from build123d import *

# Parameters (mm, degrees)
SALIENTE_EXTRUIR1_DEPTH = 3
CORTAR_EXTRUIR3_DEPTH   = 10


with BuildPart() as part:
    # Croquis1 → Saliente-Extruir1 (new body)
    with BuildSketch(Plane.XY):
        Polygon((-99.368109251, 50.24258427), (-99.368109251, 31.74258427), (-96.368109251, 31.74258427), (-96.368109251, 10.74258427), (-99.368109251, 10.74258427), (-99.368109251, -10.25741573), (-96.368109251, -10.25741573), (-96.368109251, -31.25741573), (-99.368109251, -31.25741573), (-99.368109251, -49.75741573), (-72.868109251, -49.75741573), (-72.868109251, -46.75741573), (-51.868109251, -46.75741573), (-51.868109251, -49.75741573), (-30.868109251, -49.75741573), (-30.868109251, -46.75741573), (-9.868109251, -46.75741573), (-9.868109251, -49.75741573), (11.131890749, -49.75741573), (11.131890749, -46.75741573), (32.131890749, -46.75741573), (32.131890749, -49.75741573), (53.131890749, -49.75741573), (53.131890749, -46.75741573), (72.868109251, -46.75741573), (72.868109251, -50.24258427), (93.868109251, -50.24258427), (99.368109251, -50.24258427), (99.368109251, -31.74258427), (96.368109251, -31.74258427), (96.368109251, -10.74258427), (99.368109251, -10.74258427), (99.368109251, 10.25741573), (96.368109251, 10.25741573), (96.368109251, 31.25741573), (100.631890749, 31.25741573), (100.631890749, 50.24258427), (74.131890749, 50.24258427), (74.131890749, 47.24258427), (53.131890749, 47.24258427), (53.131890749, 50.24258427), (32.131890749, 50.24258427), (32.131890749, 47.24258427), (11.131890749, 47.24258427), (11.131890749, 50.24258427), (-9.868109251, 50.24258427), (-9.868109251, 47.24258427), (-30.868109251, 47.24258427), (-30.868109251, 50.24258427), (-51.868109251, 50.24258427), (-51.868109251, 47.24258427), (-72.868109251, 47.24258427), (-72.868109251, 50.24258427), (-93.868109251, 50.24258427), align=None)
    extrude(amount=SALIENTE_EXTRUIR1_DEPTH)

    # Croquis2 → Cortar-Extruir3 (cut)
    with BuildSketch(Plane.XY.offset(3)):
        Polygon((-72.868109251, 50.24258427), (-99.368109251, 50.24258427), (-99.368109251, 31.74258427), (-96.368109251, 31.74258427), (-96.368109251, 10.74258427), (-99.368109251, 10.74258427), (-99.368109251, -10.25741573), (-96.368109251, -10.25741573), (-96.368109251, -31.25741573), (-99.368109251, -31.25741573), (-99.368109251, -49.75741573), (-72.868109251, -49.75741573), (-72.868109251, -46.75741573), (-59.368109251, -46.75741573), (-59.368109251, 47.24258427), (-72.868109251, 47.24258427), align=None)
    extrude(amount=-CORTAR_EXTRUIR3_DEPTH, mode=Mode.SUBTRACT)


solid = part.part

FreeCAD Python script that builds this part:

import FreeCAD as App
import Part
import Sketcher
Q = App.Units.Quantity

doc = App.newDocument("Part")
body = doc.addObject("PartDesign::Body", "Body")

# Sketch on XY plane
sketch1 = body.newObject("Sketcher::SketchObject", "Sketch")
sketch1.AttachmentSupport = (doc.getObject("XY_Plane"), [""])
sketch1.MapMode = "FlatFace"
sketch1.addGeometry(Part.LineSegment(App.Vector(-99.4, 50.2, 0), App.Vector(-99.4, 31.7, 0)), False)
sketch1.addGeometry(Part.LineSegment(App.Vector(-99.4, 31.7, 0), App.Vector(-96.4, 31.7, 0)), False)
sketch1.addGeometry(Part.LineSegment(App.Vector(-96.4, 31.7, 0), App.Vector(-96.4, 10.7, 0)), False)
sketch1.addGeometry(Part.LineSegment(App.Vector(-96.4, 10.7, 0), App.Vector(-99.4, 10.7, 0)), False)
sketch1.addGeometry(Part.LineSegment(App.Vector(-99.4, 10.7, 0), App.Vector(-99.4, -10.3, 0)), False)
sketch1.addGeometry(Part.LineSegment(App.Vector(-99.4, -10.3, 0), App.Vector(-96.4, -10.3, 0)), False)
sketch1.addGeometry(Part.LineSegment(App.Vector(-96.4, -10.3, 0), App.Vector(-96.4, -31.3, 0)), False)
sketch1.addGeometry(Part.LineSegment(App.Vector(-96.4, -31.3, 0), App.Vector(-99.4, -31.3, 0)), False)
sketch1.addGeometry(Part.LineSegment(App.Vector(-99.4, -31.3, 0), App.Vector(-99.4, -49.8, 0)), False)
sketch1.addGeometry(Part.LineSegment(App.Vector(-99.4, -49.8, 0), App.Vector(-72.9, -49.8, 0)), False)
sketch1.addGeometry(Part.LineSegment(App.Vector(-72.9, -49.8, 0), App.Vector(-72.9, -46.8, 0)), False)
sketch1.addGeometry(Part.LineSegment(App.Vector(-72.9, -46.8, 0), App.Vector(-51.9, -46.8, 0)), False)
sketch1.addGeometry(Part.LineSegment(App.Vector(-51.9, -46.8, 0), App.Vector(-51.9, -49.8, 0)), False)
sketch1.addGeometry(Part.LineSegment(App.Vector(-51.9, -49.8, 0), App.Vector(-30.9, -49.8, 0)), False)
sketch1.addGeometry(Part.LineSegment(App.Vector(-30.9, -49.8, 0), App.Vector(-30.9, -46.8, 0)), False)
sketch1.addGeometry(Part.LineSegment(App.Vector(-30.9, -46.8, 0), App.Vector(-9.9, -46.8, 0)), False)
sketch1.addGeometry(Part.LineSegment(App.Vector(-9.9, -46.8, 0), App.Vector(-9.9, -49.8, 0)), False)
sketch1.addGeometry(Part.LineSegment(App.Vector(-9.9, -49.8, 0), App.Vector(11.1, -49.8, 0)), False)
sketch1.addGeometry(Part.LineSegment(App.Vector(11.1, -49.8, 0), App.Vector(11.1, -46.8, 0)), False)
sketch1.addGeometry(Part.LineSegment(App.Vector(11.1, -46.8, 0), App.Vector(32.1, -46.8, 0)), False)
sketch1.addGeometry(Part.LineSegment(App.Vector(32.1, -46.8, 0), App.Vector(32.1, -49.8, 0)), False)
sketch1.addGeometry(Part.LineSegment(App.Vector(32.1, -49.8, 0), App.Vector(53.1, -49.8, 0)), False)
sketch1.addGeometry(Part.LineSegment(App.Vector(53.1, -49.8, 0), App.Vector(53.1, -46.8, 0)), False)
sketch1.addGeometry(Part.LineSegment(App.Vector(53.1, -46.8, 0), App.Vector(72.9, -46.8, 0)), False)
sketch1.addGeometry(Part.LineSegment(App.Vector(72.9, -46.8, 0), App.Vector(72.9, -50.2, 0)), False)
sketch1.addGeometry(Part.LineSegment(App.Vector(72.9, -50.2, 0), App.Vector(99.4, -50.2, 0)), False)
sketch1.addGeometry(Part.LineSegment(App.Vector(99.4, -50.2, 0), App.Vector(99.4, -31.7, 0)), False)
sketch1.addGeometry(Part.LineSegment(App.Vector(99.4, -31.7, 0), App.Vector(96.4, -31.7, 0)), False)
sketch1.addGeometry(Part.LineSegment(App.Vector(96.4, -31.7, 0), App.Vector(96.4, -10.7, 0)), False)
sketch1.addGeometry(Part.LineSegment(App.Vector(96.4, -10.7, 0), App.Vector(99.4, -10.7, 0)), False)
sketch1.addGeometry(Part.LineSegment(App.Vector(99.4, -10.7, 0), App.Vector(99.4, 10.3, 0)), False)
sketch1.addGeometry(Part.LineSegment(App.Vector(99.4, 10.3, 0), App.Vector(96.4, 10.3, 0)), False)
sketch1.addGeometry(Part.LineSegment(App.Vector(96.4, 10.3, 0), App.Vector(96.4, 31.3, 0)), False)
sketch1.addGeometry(Part.LineSegment(App.Vector(96.4, 31.3, 0), App.Vector(100.6, 31.3, 0)), False)
sketch1.addGeometry(Part.LineSegment(App.Vector(100.6, 31.3, 0), App.Vector(100.6, 50.2, 0)), False)
sketch1.addGeometry(Part.LineSegment(App.Vector(100.6, 50.2, 0), App.Vector(74.1, 50.2, 0)), False)
sketch1.addGeometry(Part.LineSegment(App.Vector(74.1, 50.2, 0), App.Vector(74.1, 47.2, 0)), False)
sketch1.addGeometry(Part.LineSegment(App.Vector(74.1, 47.2, 0), App.Vector(53.1, 47.2, 0)), False)
sketch1.addGeometry(Part.LineSegment(App.Vector(53.1, 47.2, 0), App.Vector(53.1, 50.2, 0)), False)
sketch1.addGeometry(Part.LineSegment(App.Vector(53.1, 50.2, 0), App.Vector(32.1, 50.2, 0)), False)
sketch1.addGeometry(Part.LineSegment(App.Vector(32.1, 50.2, 0), App.Vector(32.1, 47.2, 0)), False)
sketch1.addGeometry(Part.LineSegment(App.Vector(32.1, 47.2, 0), App.Vector(11.1, 47.2, 0)), False)
sketch1.addGeometry(Part.LineSegment(App.Vector(11.1, 47.2, 0), App.Vector(11.1, 50.2, 0)), False)
sketch1.addGeometry(Part.LineSegment(App.Vector(11.1, 50.2, 0), App.Vector(-9.9, 50.2, 0)), False)
sketch1.addGeometry(Part.LineSegment(App.Vector(-9.9, 50.2, 0), App.Vector(-9.9, 47.2, 0)), False)
sketch1.addGeometry(Part.LineSegment(App.Vector(-9.9, 47.2, 0), App.Vector(-30.9, 47.2, 0)), False)
sketch1.addGeometry(Part.LineSegment(App.Vector(-30.9, 47.2, 0), App.Vector(-30.9, 50.2, 0)), False)
sketch1.addGeometry(Part.LineSegment(App.Vector(-30.9, 50.2, 0), App.Vector(-51.9, 50.2, 0)), False)
sketch1.addGeometry(Part.LineSegment(App.Vector(-51.9, 50.2, 0), App.Vector(-51.9, 47.2, 0)), False)
sketch1.addGeometry(Part.LineSegment(App.Vector(-51.9, 47.2, 0), App.Vector(-72.9, 47.2, 0)), False)
sketch1.addGeometry(Part.LineSegment(App.Vector(-72.9, 47.2, 0), App.Vector(-72.9, 50.2, 0)), False)
sketch1.addGeometry(Part.LineSegment(App.Vector(-72.9, 50.2, 0), App.Vector(-99.4, 50.2, 0)), False)
sketch1.addConstraint(Sketcher.Constraint("Coincident", 0, 2, 1, 1))
sketch1.addConstraint(Sketcher.Constraint("Coincident", 1, 2, 2, 1))
sketch1.addConstraint(Sketcher.Constraint("Coincident", 2, 2, 3, 1))
sketch1.addConstraint(Sketcher.Constraint("Coincident", 3, 2, 4, 1))
sketch1.addConstraint(Sketcher.Constraint("Coincident", 4, 2, 5, 1))
sketch1.addConstraint(Sketcher.Constraint("Coincident", 5, 2, 6, 1))
sketch1.addConstraint(Sketcher.Constraint("Coincident", 6, 2, 7, 1))
sketch1.addConstraint(Sketcher.Constraint("Coincident", 7, 2, 8, 1))
sketch1.addConstraint(Sketcher.Constraint("Coincident", 8, 2, 9, 1))
sketch1.addConstraint(Sketcher.Constraint("Coincident", 9, 2, 10, 1))
sketch1.addConstraint(Sketcher.Constraint("Coincident", 10, 2, 11, 1))
sketch1.addConstraint(Sketcher.Constraint("Coincident", 11, 2, 12, 1))
sketch1.addConstraint(Sketcher.Constraint("Coincident", 12, 2, 13, 1))
sketch1.addConstraint(Sketcher.Constraint("Coincident", 13, 2, 14, 1))
sketch1.addConstraint(Sketcher.Constraint("Coincident", 14, 2, 15, 1))
sketch1.addConstraint(Sketcher.Constraint("Coincident", 15, 2, 16, 1))
sketch1.addConstraint(Sketcher.Constraint("Coincident", 16, 2, 17, 1))
sketch1.addConstraint(Sketcher.Constraint("Coincident", 17, 2, 18, 1))
sketch1.addConstraint(Sketcher.Constraint("Coincident", 18, 2, 19, 1))
sketch1.addConstraint(Sketcher.Constraint("Coincident", 19, 2, 20, 1))
sketch1.addConstraint(Sketcher.Constraint("Coincident", 20, 2, 21, 1))
sketch1.addConstraint(Sketcher.Constraint("Coincident", 21, 2, 22, 1))
sketch1.addConstraint(Sketcher.Constraint("Coincident", 22, 2, 23, 1))
sketch1.addConstraint(Sketcher.Constraint("Coincident", 23, 2, 24, 1))
sketch1.addConstraint(Sketcher.Constraint("Coincident", 24, 2, 25, 1))
sketch1.addConstraint(Sketcher.Constraint("Coincident", 25, 2, 26, 1))
sketch1.addConstraint(Sketcher.Constraint("Coincident", 26, 2, 27, 1))
sketch1.addConstraint(Sketcher.Constraint("Coincident", 27, 2, 28, 1))
sketch1.addConstraint(Sketcher.Constraint("Coincident", 28, 2, 29, 1))
sketch1.addConstraint(Sketcher.Constraint("Coincident", 29, 2, 30, 1))
sketch1.addConstraint(Sketcher.Constraint("Coincident", 30, 2, 31, 1))
sketch1.addConstraint(Sketcher.Constraint("Coincident", 31, 2, 32, 1))
sketch1.addConstraint(Sketcher.Constraint("Coincident", 32, 2, 33, 1))
sketch1.addConstraint(Sketcher.Constraint("Coincident", 33, 2, 34, 1))
sketch1.addConstraint(Sketcher.Constraint("Coincident", 34, 2, 35, 1))
sketch1.addConstraint(Sketcher.Constraint("Coincident", 35, 2, 36, 1))
sketch1.addConstraint(Sketcher.Constraint("Coincident", 36, 2, 37, 1))
sketch1.addConstraint(Sketcher.Constraint("Coincident", 37, 2, 38, 1))
sketch1.addConstraint(Sketcher.Constraint("Coincident", 38, 2, 39, 1))
sketch1.addConstraint(Sketcher.Constraint("Coincident", 39, 2, 40, 1))
sketch1.addConstraint(Sketcher.Constraint("Coincident", 40, 2, 41, 1))
sketch1.addConstraint(Sketcher.Constraint("Coincident", 41, 2, 42, 1))
sketch1.addConstraint(Sketcher.Constraint("Coincident", 42, 2, 43, 1))
sketch1.addConstraint(Sketcher.Constraint("Coincident", 43, 2, 44, 1))
sketch1.addConstraint(Sketcher.Constraint("Coincident", 44, 2, 45, 1))
sketch1.addConstraint(Sketcher.Constraint("Coincident", 45, 2, 46, 1))
sketch1.addConstraint(Sketcher.Constraint("Coincident", 46, 2, 47, 1))
sketch1.addConstraint(Sketcher.Constraint("Coincident", 47, 2, 48, 1))
sketch1.addConstraint(Sketcher.Constraint("Coincident", 48, 2, 49, 1))
sketch1.addConstraint(Sketcher.Constraint("Coincident", 49, 2, 50, 1))
sketch1.addConstraint(Sketcher.Constraint("Coincident", 50, 2, 51, 1))
sketch1.addConstraint(Sketcher.Constraint("Coincident", 51, 2, 0, 1))
sketch1.addConstraint(Sketcher.Constraint("Vertical", 0))
sketch1.addConstraint(Sketcher.Constraint("Horizontal", 1))
sketch1.addConstraint(Sketcher.Constraint("Vertical", 2))
sketch1.addConstraint(Sketcher.Constraint("Horizontal", 3))
sketch1.addConstraint(Sketcher.Constraint("Vertical", 4))
sketch1.addConstraint(Sketcher.Constraint("Horizontal", 5))
sketch1.addConstraint(Sketcher.Constraint("Vertical", 6))
sketch1.addConstraint(Sketcher.Constraint("Horizontal", 7))
sketch1.addConstraint(Sketcher.Constraint("Vertical", 8))
sketch1.addConstraint(Sketcher.Constraint("Horizontal", 9))
sketch1.addConstraint(Sketcher.Constraint("Vertical", 10))
sketch1.addConstraint(Sketcher.Constraint("Horizontal", 11))
sketch1.addConstraint(Sketcher.Constraint("Vertical", 12))
sketch1.addConstraint(Sketcher.Constraint("Horizontal", 13))
sketch1.addConstraint(Sketcher.Constraint("Vertical", 14))
sketch1.addConstraint(Sketcher.Constraint("Horizontal", 15))
sketch1.addConstraint(Sketcher.Constraint("Vertical", 16))
sketch1.addConstraint(Sketcher.Constraint("Horizontal", 17))
sketch1.addConstraint(Sketcher.Constraint("Vertical", 18))
sketch1.addConstraint(Sketcher.Constraint("Horizontal", 19))
sketch1.addConstraint(Sketcher.Constraint("Vertical", 20))
sketch1.addConstraint(Sketcher.Constraint("Horizontal", 21))
sketch1.addConstraint(Sketcher.Constraint("Vertical", 22))
sketch1.addConstraint(Sketcher.Constraint("Horizontal", 23))
sketch1.addConstraint(Sketcher.Constraint("Vertical", 24))
sketch1.addConstraint(Sketcher.Constraint("Horizontal", 25))
sketch1.addConstraint(Sketcher.Constraint("Vertical", 26))
sketch1.addConstraint(Sketcher.Constraint("Horizontal", 27))
sketch1.addConstraint(Sketcher.Constraint("Vertical", 28))
sketch1.addConstraint(Sketcher.Constraint("Horizontal", 29))
sketch1.addConstraint(Sketcher.Constraint("Vertical", 30))
sketch1.addConstraint(Sketcher.Constraint("Horizontal", 31))
sketch1.addConstraint(Sketcher.Constraint("Vertical", 32))
sketch1.addConstraint(Sketcher.Constraint("Horizontal", 33))
sketch1.addConstraint(Sketcher.Constraint("Vertical", 34))
sketch1.addConstraint(Sketcher.Constraint("Horizontal", 35))
sketch1.addConstraint(Sketcher.Constraint("Vertical", 36))
sketch1.addConstraint(Sketcher.Constraint("Horizontal", 37))
sketch1.addConstraint(Sketcher.Constraint("Vertical", 38))
sketch1.addConstraint(Sketcher.Constraint("Horizontal", 39))
sketch1.addConstraint(Sketcher.Constraint("Vertical", 40))
sketch1.addConstraint(Sketcher.Constraint("Horizontal", 41))
sketch1.addConstraint(Sketcher.Constraint("Vertical", 42))
sketch1.addConstraint(Sketcher.Constraint("Horizontal", 43))
sketch1.addConstraint(Sketcher.Constraint("Vertical", 44))
sketch1.addConstraint(Sketcher.Constraint("Horizontal", 45))
sketch1.addConstraint(Sketcher.Constraint("Vertical", 46))
sketch1.addConstraint(Sketcher.Constraint("Horizontal", 47))
sketch1.addConstraint(Sketcher.Constraint("Vertical", 48))
sketch1.addConstraint(Sketcher.Constraint("Horizontal", 49))
sketch1.addConstraint(Sketcher.Constraint("Vertical", 50))
sketch1.addConstraint(Sketcher.Constraint("Horizontal", 51))
sketch1.addConstraint(Sketcher.Constraint("Symmetric", 0, 2, 26, 2, -1, 1))
sketch1.addConstraint(Sketcher.Constraint("Symmetric", 2, 2, 28, 2, -1, 1))
sketch1.addConstraint(Sketcher.Constraint("Symmetric", 4, 2, 30, 2, -1, 1))
sketch1.addConstraint(Sketcher.Constraint("Symmetric", 6, 2, 32, 2, -1, 1))
sketch1.addConstraint(Sketcher.Constraint("Symmetric", 24, 2, 50, 2, -1, 1))
sketch1.addConstraint(Sketcher.Constraint("Symmetric", 10, 2, 23, 2, -2))
sketch1.addConstraint(Sketcher.Constraint("Horizontal", 9, 2, 12, 2))
sketch1.addConstraint(Sketcher.Constraint("Horizontal", 11, 2, 14, 2))
sketch1.addConstraint(Sketcher.Constraint("Horizontal", 13, 2, 16, 2))
sketch1.addConstraint(Sketcher.Constraint("Horizontal", 15, 2, 18, 2))
sketch1.addConstraint(Sketcher.Constraint("Horizontal", 17, 2, 20, 2))
sketch1.addConstraint(Sketcher.Constraint("Horizontal", 35, 2, 38, 2))
sketch1.addConstraint(Sketcher.Constraint("Horizontal", 37, 2, 40, 2))
sketch1.addConstraint(Sketcher.Constraint("Horizontal", 39, 2, 42, 2))
sketch1.addConstraint(Sketcher.Constraint("Horizontal", 41, 2, 44, 2))
sketch1.addConstraint(Sketcher.Constraint("Horizontal", 43, 2, 46, 2))
sketch1.addConstraint(Sketcher.Constraint("Horizontal", 45, 2, 48, 2))
sketch1.addConstraint(Sketcher.Constraint("Horizontal", 47, 2, 50, 2))
sketch1.addConstraint(Sketcher.Constraint("Vertical", 0, 2, 3, 2))
sketch1.addConstraint(Sketcher.Constraint("Vertical", 2, 2, 5, 2))
sketch1.addConstraint(Sketcher.Constraint("Vertical", 4, 2, 7, 2))
sketch1.addConstraint(Sketcher.Constraint("Vertical", 22, 2, 37, 2))
sketch1.addConstraint(Sketcher.Constraint("Vertical", 20, 2, 39, 2))
sketch1.addConstraint(Sketcher.Constraint("Vertical", 18, 2, 41, 2))
sketch1.addConstraint(Sketcher.Constraint("Vertical", 16, 2, 43, 2))
sketch1.addConstraint(Sketcher.Constraint("Vertical", 14, 2, 45, 2))
sketch1.addConstraint(Sketcher.Constraint("Vertical", 12, 2, 47, 2))
sketch1.addConstraint(Sketcher.Constraint("Equal", 11, 13))
sketch1.addConstraint(Sketcher.Constraint("Equal", 13, 15))
sketch1.addConstraint(Sketcher.Constraint("Equal", 15, 17))
sketch1.addConstraint(Sketcher.Constraint("Equal", 17, 19))
sketch1.addConstraint(Sketcher.Constraint("Equal", 19, 21))
sketch1.addConstraint(Sketcher.Constraint("Equal", 25, 35))
sketch1.addConstraint(Sketcher.Constraint("Equal", 21, 37))
sketch1.addConstraint(Sketcher.Constraint("Equal", 49, 2))
sketch1.addConstraint(Sketcher.Constraint("Equal", 2, 4))
sketch1.addConstraint(Sketcher.Constraint("Equal", 4, 6))
sketch1.addConstraint(Sketcher.Constraint("Equal", 0, 8))
sketch1.addConstraint(Sketcher.Constraint("Equal", 31, 10))
sketch1.addConstraint(Sketcher.Constraint("Equal", 22, 36))
sketch1.addConstraint(Sketcher.Constraint("DistanceX", 1, 1, 1, 2, Q("3 mm")))
sketch1.addConstraint(Sketcher.Constraint("DistanceX", 11, 1, 11, 2, Q("21 mm")))
sketch1.addConstraint(Sketcher.Constraint("DistanceX", 9, 1, 9, 2, Q("26.5 mm")))
sketch1.addConstraint(Sketcher.Constraint("DistanceY", 0, 2, 0, 1, Q("18.5 mm")))
sketch1.addConstraint(Sketcher.Constraint("DistanceX", 23, 1, 23, 2, Q("19.736219 mm")))
sketch1.addConstraint(Sketcher.Constraint("DistanceY", 24, 2, 24, 1, Q("3.485169 mm")))
pad1 = body.newObject("PartDesign::Pad", "Pad")
pad1.Profile = sketch1
pad1.Length = 3

# Sketch on XY plane
sketch2 = body.newObject("Sketcher::SketchObject", "Sketch001")
sketch2.AttachmentSupport = (doc.getObject("XY_Plane"), [""])
sketch2.MapMode = "FlatFace"
sketch2.AttachmentOffset = App.Placement(App.Vector(0, 0, 3), App.Rotation())
sketch2.addGeometry(Part.LineSegment(App.Vector(-72.9, 50.2, 0), App.Vector(-99.4, 50.2, 0)), False)
sketch2.addGeometry(Part.LineSegment(App.Vector(-99.4, 50.2, 0), App.Vector(-99.4, 31.7, 0)), False)
sketch2.addGeometry(Part.LineSegment(App.Vector(-99.4, 31.7, 0), App.Vector(-96.4, 31.7, 0)), False)
sketch2.addGeometry(Part.LineSegment(App.Vector(-96.4, 31.7, 0), App.Vector(-96.4, 10.7, 0)), False)
sketch2.addGeometry(Part.LineSegment(App.Vector(-96.4, 10.7, 0), App.Vector(-99.4, 10.7, 0)), False)
sketch2.addGeometry(Part.LineSegment(App.Vector(-99.4, 10.7, 0), App.Vector(-99.4, -10.3, 0)), False)
sketch2.addGeometry(Part.LineSegment(App.Vector(-99.4, -10.3, 0), App.Vector(-96.4, -10.3, 0)), False)
sketch2.addGeometry(Part.LineSegment(App.Vector(-96.4, -10.3, 0), App.Vector(-96.4, -31.3, 0)), False)
sketch2.addGeometry(Part.LineSegment(App.Vector(-96.4, -31.3, 0), App.Vector(-99.4, -31.3, 0)), False)
sketch2.addGeometry(Part.LineSegment(App.Vector(-99.4, -31.3, 0), App.Vector(-99.4, -49.8, 0)), False)
sketch2.addGeometry(Part.LineSegment(App.Vector(-99.4, -49.8, 0), App.Vector(-72.9, -49.8, 0)), False)
sketch2.addGeometry(Part.LineSegment(App.Vector(-72.9, -49.8, 0), App.Vector(-72.9, -46.8, 0)), False)
sketch2.addGeometry(Part.LineSegment(App.Vector(-72.9, -46.8, 0), App.Vector(-59.4, -46.8, 0)), False)
sketch2.addGeometry(Part.LineSegment(App.Vector(-59.4, -46.8, 0), App.Vector(-59.4, 47.2, 0)), False)
sketch2.addGeometry(Part.LineSegment(App.Vector(-59.4, 47.2, 0), App.Vector(-72.9, 47.2, 0)), False)
sketch2.addGeometry(Part.LineSegment(App.Vector(-72.9, 47.2, 0), App.Vector(-72.9, 50.2, 0)), False)
sketch2.addConstraint(Sketcher.Constraint("Coincident", 0, 2, 1, 1))
sketch2.addConstraint(Sketcher.Constraint("Coincident", 1, 2, 2, 1))
sketch2.addConstraint(Sketcher.Constraint("Coincident", 2, 2, 3, 1))
sketch2.addConstraint(Sketcher.Constraint("Coincident", 3, 2, 4, 1))
sketch2.addConstraint(Sketcher.Constraint("Coincident", 4, 2, 5, 1))
sketch2.addConstraint(Sketcher.Constraint("Coincident", 5, 2, 6, 1))
sketch2.addConstraint(Sketcher.Constraint("Coincident", 6, 2, 7, 1))
sketch2.addConstraint(Sketcher.Constraint("Coincident", 7, 2, 8, 1))
sketch2.addConstraint(Sketcher.Constraint("Coincident", 8, 2, 9, 1))
sketch2.addConstraint(Sketcher.Constraint("Coincident", 9, 2, 10, 1))
sketch2.addConstraint(Sketcher.Constraint("Coincident", 10, 2, 11, 1))
sketch2.addConstraint(Sketcher.Constraint("Coincident", 11, 2, 12, 1))
sketch2.addConstraint(Sketcher.Constraint("Coincident", 12, 2, 13, 1))
sketch2.addConstraint(Sketcher.Constraint("Coincident", 13, 2, 14, 1))
sketch2.addConstraint(Sketcher.Constraint("Coincident", 14, 2, 15, 1))
sketch2.addConstraint(Sketcher.Constraint("Coincident", 15, 2, 0, 1))
sketch2.addConstraint(Sketcher.Constraint("Horizontal", 0))
sketch2.addConstraint(Sketcher.Constraint("Vertical", 1))
sketch2.addConstraint(Sketcher.Constraint("Horizontal", 2))
sketch2.addConstraint(Sketcher.Constraint("Vertical", 3))
sketch2.addConstraint(Sketcher.Constraint("Horizontal", 4))
sketch2.addConstraint(Sketcher.Constraint("Vertical", 5))
sketch2.addConstraint(Sketcher.Constraint("Horizontal", 6))
sketch2.addConstraint(Sketcher.Constraint("Vertical", 7))
sketch2.addConstraint(Sketcher.Constraint("Horizontal", 8))
sketch2.addConstraint(Sketcher.Constraint("Vertical", 9))
sketch2.addConstraint(Sketcher.Constraint("Horizontal", 10))
sketch2.addConstraint(Sketcher.Constraint("Vertical", 11))
sketch2.addConstraint(Sketcher.Constraint("Horizontal", 12))
sketch2.addConstraint(Sketcher.Constraint("Vertical", 13))
sketch2.addConstraint(Sketcher.Constraint("Horizontal", 14))
sketch2.addConstraint(Sketcher.Constraint("Vertical", 15))
sketch2.addConstraint(Sketcher.Constraint("Vertical", 1, 2, 4, 2))
sketch2.addConstraint(Sketcher.Constraint("Vertical", 3, 2, 6, 2))
sketch2.addConstraint(Sketcher.Constraint("Vertical", 5, 2, 8, 2))
sketch2.addConstraint(Sketcher.Constraint("Vertical", 11, 2, 14, 2))
sketch2.addConstraint(Sketcher.Constraint("Equal", 3, 5))
sketch2.addConstraint(Sketcher.Constraint("Equal", 5, 7))
sketch2.addConstraint(Sketcher.Constraint("Equal", 1, 9))
sketch2.addConstraint(Sketcher.Constraint("Equal", 8, 11))
sketch2.addConstraint(Sketcher.Constraint("Equal", 11, 15))
sketch2.addConstraint(Sketcher.Constraint("DistanceX", 2, 1, 2, 2, Q("3 mm")))
sketch2.addConstraint(Sketcher.Constraint("DistanceY", 3, 2, 3, 1, Q("21 mm")))
sketch2.addConstraint(Sketcher.Constraint("DistanceY", 13, 1, 13, 2, Q("94 mm")))
sketch2.addConstraint(Sketcher.Constraint("DistanceX", 0, 2, 0, 1, Q("26.5 mm")))
sketch2.addConstraint(Sketcher.Constraint("DistanceX", 12, 1, 12, 2, Q("13.5 mm")))
sketch2.addConstraint(Sketcher.Constraint("DistanceX", 0, 2, -1, 1, Q("99.368109 mm")))
sketch2.addConstraint(Sketcher.Constraint("DistanceY", -1, 1, 0, 2, Q("50.242584 mm")))
pocket1 = body.newObject("PartDesign::Pocket", "Pocket")
pocket1.Profile = sketch2
pocket1.Length = 10

doc.recompute()
